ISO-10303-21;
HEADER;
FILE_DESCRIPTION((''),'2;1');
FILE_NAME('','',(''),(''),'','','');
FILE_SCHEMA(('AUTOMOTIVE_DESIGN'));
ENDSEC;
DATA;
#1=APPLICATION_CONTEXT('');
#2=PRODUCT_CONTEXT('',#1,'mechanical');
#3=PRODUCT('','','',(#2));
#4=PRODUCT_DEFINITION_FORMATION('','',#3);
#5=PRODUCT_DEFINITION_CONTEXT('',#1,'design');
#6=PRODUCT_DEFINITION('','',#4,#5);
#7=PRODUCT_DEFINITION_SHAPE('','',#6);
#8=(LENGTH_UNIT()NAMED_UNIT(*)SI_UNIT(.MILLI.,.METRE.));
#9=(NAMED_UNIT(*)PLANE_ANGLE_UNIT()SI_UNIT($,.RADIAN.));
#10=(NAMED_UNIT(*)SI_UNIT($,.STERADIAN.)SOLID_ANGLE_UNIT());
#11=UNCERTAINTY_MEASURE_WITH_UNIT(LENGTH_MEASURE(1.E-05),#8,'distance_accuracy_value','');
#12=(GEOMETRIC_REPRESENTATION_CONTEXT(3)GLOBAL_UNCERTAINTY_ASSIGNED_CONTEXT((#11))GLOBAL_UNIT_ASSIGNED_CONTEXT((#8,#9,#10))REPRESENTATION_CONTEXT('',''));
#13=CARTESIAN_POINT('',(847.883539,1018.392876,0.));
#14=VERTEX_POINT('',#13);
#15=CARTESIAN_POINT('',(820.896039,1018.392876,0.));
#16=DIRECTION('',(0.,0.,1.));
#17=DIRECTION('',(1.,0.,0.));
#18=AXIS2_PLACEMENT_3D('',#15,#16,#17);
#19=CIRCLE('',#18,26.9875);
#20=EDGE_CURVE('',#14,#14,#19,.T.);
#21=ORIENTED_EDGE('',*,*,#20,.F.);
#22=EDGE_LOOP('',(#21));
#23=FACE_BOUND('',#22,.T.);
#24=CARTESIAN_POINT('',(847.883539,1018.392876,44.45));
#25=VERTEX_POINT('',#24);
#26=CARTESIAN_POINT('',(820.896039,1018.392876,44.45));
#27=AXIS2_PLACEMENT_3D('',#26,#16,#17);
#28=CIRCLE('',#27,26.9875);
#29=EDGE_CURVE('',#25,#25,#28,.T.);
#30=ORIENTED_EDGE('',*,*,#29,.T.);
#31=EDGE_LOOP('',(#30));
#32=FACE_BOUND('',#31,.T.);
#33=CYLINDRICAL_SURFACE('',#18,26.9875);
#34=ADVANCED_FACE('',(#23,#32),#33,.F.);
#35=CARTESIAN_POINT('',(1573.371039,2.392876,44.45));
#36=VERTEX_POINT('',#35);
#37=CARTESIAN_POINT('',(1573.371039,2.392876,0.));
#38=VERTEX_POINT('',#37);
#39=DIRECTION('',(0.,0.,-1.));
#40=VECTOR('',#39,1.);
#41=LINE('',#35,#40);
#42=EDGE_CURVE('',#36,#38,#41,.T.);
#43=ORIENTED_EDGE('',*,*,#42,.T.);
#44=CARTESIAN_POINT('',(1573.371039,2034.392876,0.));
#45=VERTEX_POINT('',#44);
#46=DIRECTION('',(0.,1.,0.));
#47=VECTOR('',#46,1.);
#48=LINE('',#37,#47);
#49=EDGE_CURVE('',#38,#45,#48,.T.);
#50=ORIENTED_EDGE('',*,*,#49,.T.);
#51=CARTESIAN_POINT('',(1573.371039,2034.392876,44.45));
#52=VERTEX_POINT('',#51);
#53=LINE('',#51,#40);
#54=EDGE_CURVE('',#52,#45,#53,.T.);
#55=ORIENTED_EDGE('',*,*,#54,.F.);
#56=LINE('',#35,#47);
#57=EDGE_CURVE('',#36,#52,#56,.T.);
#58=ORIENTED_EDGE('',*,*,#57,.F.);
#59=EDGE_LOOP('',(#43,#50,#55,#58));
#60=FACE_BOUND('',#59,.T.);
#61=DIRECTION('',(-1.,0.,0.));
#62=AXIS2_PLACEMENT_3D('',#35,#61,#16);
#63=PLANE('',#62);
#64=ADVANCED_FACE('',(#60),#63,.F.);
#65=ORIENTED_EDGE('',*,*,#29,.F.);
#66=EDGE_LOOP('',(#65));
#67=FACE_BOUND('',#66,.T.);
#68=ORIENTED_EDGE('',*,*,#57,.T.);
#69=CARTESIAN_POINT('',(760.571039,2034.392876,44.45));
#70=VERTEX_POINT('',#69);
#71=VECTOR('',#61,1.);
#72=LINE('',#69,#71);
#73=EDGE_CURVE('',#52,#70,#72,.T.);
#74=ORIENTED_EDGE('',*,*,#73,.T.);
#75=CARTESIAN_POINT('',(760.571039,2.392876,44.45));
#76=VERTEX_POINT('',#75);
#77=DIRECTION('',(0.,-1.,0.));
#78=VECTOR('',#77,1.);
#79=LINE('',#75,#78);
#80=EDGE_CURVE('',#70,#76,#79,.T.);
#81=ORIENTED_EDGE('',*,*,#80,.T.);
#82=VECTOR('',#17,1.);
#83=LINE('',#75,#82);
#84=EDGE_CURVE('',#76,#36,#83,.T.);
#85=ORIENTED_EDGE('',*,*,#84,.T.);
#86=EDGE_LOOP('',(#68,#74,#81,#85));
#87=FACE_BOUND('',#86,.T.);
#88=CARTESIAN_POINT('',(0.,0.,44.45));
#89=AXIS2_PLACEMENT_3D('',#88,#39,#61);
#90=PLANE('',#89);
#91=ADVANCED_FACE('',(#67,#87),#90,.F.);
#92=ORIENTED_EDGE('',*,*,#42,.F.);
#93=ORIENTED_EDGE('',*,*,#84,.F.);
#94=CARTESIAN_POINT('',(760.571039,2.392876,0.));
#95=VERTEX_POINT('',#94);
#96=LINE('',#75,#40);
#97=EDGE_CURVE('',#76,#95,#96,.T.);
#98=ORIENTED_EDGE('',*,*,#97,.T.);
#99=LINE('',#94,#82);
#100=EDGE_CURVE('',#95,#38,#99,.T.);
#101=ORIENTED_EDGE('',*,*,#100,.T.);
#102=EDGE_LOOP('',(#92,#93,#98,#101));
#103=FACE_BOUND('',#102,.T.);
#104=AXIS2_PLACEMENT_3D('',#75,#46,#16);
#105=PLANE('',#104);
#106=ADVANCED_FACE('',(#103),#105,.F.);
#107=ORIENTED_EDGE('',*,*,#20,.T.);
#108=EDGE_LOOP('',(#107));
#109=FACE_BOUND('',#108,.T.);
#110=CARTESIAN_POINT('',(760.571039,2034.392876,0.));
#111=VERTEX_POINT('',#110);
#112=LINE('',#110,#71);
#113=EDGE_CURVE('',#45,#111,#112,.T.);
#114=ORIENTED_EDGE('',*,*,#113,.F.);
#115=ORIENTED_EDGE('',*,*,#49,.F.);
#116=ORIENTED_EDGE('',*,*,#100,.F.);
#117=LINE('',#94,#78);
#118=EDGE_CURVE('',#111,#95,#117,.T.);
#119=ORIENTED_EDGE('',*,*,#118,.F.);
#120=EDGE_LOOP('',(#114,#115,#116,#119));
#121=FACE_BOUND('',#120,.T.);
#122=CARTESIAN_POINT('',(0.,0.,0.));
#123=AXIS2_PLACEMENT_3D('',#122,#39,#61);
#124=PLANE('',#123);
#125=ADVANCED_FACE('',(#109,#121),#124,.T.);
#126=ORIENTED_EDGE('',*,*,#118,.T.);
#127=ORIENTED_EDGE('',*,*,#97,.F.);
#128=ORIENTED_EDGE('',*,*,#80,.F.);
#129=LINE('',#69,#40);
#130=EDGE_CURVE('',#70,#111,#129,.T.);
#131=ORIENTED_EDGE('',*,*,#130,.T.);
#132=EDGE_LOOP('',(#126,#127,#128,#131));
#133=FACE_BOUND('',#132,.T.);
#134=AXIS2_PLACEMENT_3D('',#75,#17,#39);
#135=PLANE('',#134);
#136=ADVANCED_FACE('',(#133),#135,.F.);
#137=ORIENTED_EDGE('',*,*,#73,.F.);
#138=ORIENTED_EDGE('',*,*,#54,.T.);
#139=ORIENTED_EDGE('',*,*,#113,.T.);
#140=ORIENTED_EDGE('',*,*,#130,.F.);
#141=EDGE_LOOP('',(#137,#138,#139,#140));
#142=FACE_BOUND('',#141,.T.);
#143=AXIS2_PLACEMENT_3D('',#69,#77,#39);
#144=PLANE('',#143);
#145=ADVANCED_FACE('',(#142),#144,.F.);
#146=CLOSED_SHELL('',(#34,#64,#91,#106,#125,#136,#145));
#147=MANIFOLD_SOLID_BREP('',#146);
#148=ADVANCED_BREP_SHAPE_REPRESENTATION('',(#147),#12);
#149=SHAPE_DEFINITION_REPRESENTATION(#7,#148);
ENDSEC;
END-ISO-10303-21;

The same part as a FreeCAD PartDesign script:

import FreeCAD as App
import Part
import Sketcher

V = App.Vector
Q = App.Units.Quantity

doc = App.newDocument("Part")
body = doc.addObject("PartDesign::Body", "Body")

# Sketch on XY plane
sketch1 = body.newObject("Sketcher::SketchObject", "Sketch")
sketch1.AttachmentSupport = (doc.getObject("XY_Plane"), [""])
sketch1.MapMode = "FlatFace"
sketch1.addGeometry(Part.LineSegment(V(761, 2034, 0), V(761, 2, 0)), False)
sketch1.addGeometry(Part.LineSegment(V(761, 2, 0), V(1573, 2, 0)), False)
sketch1.addGeometry(Part.LineSegment(V(1573, 2, 0), V(1573, 2034, 0)), False)
sketch1.addGeometry(Part.LineSegment(V(1573, 2034, 0), V(761, 2034, 0)), False)
sketch1.addConstraint(Sketcher.Constraint("Coincident", 0, 2, 1, 1))
sketch1.addConstraint(Sketcher.Constraint("Coincident", 1, 2, 2, 1))
sketch1.addConstraint(Sketcher.Constraint("Coincident", 2, 2, 3, 1))
sketch1.addConstraint(Sketcher.Constraint("Coincident", 3, 2, 0, 1))
sketch1.addConstraint(Sketcher.Constraint("Vertical", 0))
sketch1.addConstraint(Sketcher.Constraint("Horizontal", 1))
sketch1.addConstraint(Sketcher.Constraint("Vertical", 2))
sketch1.addConstraint(Sketcher.Constraint("Horizontal", 3))
sketch1.addConstraint(Sketcher.Constraint("DistanceX", 1, 1, 1, 2, Q("32 in")))
sketch1.addConstraint(Sketcher.Constraint("DistanceY", 0, 2, 0, 1, Q("80 in")))
sketch1.addConstraint(Sketcher.Constraint("DistanceX", -1, 1, 0, 2, Q("760.571039 mm")))
sketch1.addConstraint(Sketcher.Constraint("DistanceY", -1, 1, 0, 2, Q("2.392876 mm")))
pad1 = body.newObject("PartDesign::Pad", "Pad")
pad1.Profile = sketch1
pad1.Length = Q("1.75 in")

# Sketch on XY plane
sketch2 = body.newObject("Sketcher::SketchObject", "Sketch001")
sketch2.AttachmentSupport = (doc.getObject("XY_Plane"), [""])
sketch2.MapMode = "FlatFace"
sketch2.AttachmentOffset = App.Placement(V(0, 0, 1.75 * 25.4), App.Rotation())
sketch2.addGeometry(Part.Circle(V(821, 1018, 0), V(0, 0, 1), 27), False)
sketch2.addConstraint(Sketcher.Constraint("Diameter", 0, Q("2.125 in")))
sketch2.addConstraint(Sketcher.Constraint("DistanceX", -1, 1, 0, 3, Q("820.896039 mm")))
sketch2.addConstraint(Sketcher.Constraint("DistanceY", -1, 1, 0, 3, Q("1018.392876 mm")))
pocket1 = body.newObject("PartDesign::Pocket", "Pocket")
pocket1.Profile = sketch2
pocket1.Length = Q("1.75 in")

doc.recompute()
